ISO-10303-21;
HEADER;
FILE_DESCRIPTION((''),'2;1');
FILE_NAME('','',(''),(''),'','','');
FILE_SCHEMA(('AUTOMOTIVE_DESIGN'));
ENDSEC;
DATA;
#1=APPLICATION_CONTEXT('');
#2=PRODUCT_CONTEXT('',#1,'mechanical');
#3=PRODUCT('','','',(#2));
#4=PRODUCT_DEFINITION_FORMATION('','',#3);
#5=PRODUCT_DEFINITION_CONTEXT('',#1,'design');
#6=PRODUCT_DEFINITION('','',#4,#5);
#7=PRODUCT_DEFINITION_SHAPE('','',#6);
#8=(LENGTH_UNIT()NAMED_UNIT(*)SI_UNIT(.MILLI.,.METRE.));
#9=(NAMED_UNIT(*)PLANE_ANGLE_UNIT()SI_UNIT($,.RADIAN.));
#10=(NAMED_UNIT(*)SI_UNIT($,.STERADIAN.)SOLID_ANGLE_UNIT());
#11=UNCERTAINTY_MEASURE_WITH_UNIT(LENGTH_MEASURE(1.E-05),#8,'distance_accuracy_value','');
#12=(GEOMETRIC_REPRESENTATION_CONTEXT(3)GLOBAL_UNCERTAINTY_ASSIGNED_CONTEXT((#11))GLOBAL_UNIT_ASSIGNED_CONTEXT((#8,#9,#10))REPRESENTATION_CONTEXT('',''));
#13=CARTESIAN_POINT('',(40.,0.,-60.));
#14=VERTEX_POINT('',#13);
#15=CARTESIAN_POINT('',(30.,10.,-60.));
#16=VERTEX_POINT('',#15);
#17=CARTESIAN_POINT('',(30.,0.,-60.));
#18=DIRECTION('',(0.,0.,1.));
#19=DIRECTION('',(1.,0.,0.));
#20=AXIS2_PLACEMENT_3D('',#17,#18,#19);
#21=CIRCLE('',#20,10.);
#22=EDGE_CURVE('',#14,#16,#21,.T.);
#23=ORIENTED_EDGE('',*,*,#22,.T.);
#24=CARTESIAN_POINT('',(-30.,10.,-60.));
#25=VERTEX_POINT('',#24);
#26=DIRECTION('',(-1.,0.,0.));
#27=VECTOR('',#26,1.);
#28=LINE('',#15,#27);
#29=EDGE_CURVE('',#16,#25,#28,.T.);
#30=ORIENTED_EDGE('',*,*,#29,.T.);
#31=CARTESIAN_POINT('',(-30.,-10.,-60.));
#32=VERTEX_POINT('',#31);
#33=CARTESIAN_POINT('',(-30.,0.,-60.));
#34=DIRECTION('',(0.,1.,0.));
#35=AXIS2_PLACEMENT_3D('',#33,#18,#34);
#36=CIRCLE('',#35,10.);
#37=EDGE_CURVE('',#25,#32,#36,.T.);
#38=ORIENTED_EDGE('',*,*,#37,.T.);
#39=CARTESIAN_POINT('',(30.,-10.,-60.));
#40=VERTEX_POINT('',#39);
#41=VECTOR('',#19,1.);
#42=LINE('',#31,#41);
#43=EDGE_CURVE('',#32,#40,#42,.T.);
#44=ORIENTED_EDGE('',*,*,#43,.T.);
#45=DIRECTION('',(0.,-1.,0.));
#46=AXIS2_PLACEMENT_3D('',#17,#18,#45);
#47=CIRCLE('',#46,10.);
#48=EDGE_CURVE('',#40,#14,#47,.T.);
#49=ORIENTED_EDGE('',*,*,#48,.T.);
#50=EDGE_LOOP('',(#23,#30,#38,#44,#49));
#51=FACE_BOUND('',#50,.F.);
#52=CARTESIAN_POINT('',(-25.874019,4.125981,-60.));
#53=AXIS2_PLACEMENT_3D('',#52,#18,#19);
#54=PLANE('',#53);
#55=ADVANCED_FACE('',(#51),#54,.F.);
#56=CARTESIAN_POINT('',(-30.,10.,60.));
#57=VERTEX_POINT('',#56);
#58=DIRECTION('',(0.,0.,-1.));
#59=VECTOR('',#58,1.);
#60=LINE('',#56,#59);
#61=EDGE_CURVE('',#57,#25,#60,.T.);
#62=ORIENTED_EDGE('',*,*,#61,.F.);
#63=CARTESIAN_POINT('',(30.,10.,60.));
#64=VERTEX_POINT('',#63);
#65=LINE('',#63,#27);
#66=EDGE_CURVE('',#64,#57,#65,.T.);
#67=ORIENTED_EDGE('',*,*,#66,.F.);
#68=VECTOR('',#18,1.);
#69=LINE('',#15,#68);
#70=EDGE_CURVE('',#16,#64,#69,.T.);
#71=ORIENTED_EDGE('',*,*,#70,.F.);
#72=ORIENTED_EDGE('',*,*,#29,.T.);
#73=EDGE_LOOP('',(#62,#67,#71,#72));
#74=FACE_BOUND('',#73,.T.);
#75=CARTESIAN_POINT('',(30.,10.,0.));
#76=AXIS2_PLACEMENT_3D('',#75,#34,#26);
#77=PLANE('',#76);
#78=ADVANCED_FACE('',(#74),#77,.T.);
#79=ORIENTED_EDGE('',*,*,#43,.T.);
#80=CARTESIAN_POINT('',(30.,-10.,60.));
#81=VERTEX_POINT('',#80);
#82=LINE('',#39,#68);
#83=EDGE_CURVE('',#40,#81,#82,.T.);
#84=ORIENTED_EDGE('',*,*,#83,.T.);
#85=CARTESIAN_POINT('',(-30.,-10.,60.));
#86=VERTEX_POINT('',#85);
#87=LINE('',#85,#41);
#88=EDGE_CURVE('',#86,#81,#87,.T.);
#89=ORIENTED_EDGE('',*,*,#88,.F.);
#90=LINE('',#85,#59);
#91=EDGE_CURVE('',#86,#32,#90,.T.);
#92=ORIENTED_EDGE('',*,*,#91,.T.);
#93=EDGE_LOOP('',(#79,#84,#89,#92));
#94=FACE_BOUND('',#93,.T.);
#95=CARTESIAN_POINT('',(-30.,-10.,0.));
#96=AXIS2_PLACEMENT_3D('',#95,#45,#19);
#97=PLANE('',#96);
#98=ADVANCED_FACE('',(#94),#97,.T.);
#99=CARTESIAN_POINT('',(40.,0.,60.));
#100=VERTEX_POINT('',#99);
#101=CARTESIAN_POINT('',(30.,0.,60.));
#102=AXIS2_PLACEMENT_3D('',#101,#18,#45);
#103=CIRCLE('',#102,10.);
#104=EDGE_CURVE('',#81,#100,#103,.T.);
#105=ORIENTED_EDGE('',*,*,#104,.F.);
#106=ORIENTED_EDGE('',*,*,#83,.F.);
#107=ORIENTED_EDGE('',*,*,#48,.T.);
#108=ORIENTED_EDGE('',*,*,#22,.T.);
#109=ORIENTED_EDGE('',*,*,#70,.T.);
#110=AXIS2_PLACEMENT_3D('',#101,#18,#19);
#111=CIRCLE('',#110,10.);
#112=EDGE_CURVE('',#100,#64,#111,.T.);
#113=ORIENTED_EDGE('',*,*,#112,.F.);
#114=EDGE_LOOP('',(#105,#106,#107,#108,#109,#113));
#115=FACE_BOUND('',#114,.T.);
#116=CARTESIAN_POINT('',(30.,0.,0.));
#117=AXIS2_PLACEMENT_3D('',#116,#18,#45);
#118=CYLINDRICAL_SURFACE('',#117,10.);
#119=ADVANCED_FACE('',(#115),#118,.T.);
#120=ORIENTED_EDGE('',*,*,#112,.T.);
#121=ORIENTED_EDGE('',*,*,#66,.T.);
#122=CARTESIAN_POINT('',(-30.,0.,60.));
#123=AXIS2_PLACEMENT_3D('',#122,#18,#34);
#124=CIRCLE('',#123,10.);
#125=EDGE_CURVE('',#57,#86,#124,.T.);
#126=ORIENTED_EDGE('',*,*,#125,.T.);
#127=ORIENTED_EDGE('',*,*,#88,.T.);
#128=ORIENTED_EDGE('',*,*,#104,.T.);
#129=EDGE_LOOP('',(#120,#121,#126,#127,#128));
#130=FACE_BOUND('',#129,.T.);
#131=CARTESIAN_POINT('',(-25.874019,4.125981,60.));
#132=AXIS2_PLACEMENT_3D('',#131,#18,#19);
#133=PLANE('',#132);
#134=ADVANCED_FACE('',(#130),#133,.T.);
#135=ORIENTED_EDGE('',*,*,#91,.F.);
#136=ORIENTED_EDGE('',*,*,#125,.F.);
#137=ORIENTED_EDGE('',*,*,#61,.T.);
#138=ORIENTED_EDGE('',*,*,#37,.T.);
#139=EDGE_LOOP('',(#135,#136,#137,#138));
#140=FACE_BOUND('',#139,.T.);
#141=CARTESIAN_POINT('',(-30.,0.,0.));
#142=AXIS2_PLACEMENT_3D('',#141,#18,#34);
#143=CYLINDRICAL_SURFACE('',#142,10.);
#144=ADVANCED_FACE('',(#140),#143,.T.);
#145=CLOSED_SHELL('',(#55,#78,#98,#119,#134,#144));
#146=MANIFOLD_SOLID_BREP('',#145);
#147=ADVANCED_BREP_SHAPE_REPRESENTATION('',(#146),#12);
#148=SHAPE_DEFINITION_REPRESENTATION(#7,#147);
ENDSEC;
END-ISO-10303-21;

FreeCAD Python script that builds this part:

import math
import FreeCAD as App
import Part
import Sketcher
from FreeCAD import Vector

doc = App.newDocument("Part")
body = doc.addObject("PartDesign::Body", "Body")

sketch1 = doc.addObject("Sketcher::SketchObject", "Sketch")
body.addObject(sketch1)
sketch1.AttachmentSupport = (doc.XY_Plane, [""])
sketch1.MapMode = "FlatFace"
sketch1.addGeometry([
    Part.LineSegment(Vector(-30, -10, 0), Vector(30, -10, 0)),
    Part.ArcOfCircle(Part.Circle(Vector(30, 0, 0), Vector(0, 0, 1), 10), math.radians(-90), math.radians(0)),
    Part.ArcOfCircle(Part.Circle(Vector(30, 0, 0), Vector(0, 0, 1), 10), math.radians(0), math.radians(90)),
    Part.LineSegment(Vector(30, 10, 0), Vector(-30, 10, 0)),
    Part.ArcOfCircle(Part.Circle(Vector(-30, 0, 0), Vector(0, 0, 1), 10), math.radians(90), math.radians(270)),
], False)
sketch1.addConstraint([
    Sketcher.Constraint("Tangent", 0, 2, 1, 1),
    Sketcher.Constraint("Tangent", 1, 2, 2, 1),
    Sketcher.Constraint("Tangent", 2, 2, 3, 1),
    Sketcher.Constraint("Tangent", 3, 2, 4, 1),
    Sketcher.Constraint("Tangent", 4, 2, 0, 1),
    Sketcher.Constraint("Horizontal", 0),
    Sketcher.Constraint("Horizontal", 3),
    Sketcher.Constraint("Equal", 1, 2),
    Sketcher.Constraint("Symmetric", 1, 3, 4, 3, -1, 1),
    Sketcher.Constraint("PointOnObject", 1, 2, -1),
    Sketcher.Constraint("Radius", 1, 10.0),
    Sketcher.Constraint("DistanceX", 0, 1, 0, 2, 60.0),
])
pad1 = doc.addObject("PartDesign::Pad", "Pad")
body.addObject(pad1)
pad1.Profile = sketch1
pad1.Length = 120
pad1.Midplane = True

doc.recompute()
